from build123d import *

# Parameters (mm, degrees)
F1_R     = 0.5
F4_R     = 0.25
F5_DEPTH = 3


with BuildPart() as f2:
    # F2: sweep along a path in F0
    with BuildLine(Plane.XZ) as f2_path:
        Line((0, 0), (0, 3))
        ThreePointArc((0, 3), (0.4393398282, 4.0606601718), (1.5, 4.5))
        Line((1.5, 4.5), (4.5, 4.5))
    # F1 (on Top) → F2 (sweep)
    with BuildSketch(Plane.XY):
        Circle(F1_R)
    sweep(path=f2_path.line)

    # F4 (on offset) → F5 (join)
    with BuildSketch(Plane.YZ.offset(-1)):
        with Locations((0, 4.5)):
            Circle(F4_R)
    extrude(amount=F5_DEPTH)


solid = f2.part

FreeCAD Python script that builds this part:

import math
import FreeCAD as App
import Part
import Sketcher

doc = App.newDocument("Part")
body = doc.addObject("PartDesign::Body", "Body")

sketch1 = body.newObject("Sketcher::SketchObject", "Sketch")
sketch1.AttachmentSupport = (doc.getObject("XY_Plane"), [""])
sketch1.MapMode = "FlatFace"
sketch1.addGeometry(Part.Circle(App.Vector(0, 0, 0), App.Vector(0, 0, 1), 0.5), False)
sketch1.addConstraint([
    Sketcher.Constraint("Coincident", 0, 3, -1, 1),
    Sketcher.Constraint("Diameter", 0, 1.0),
])

sketch2 = body.newObject("Sketcher::SketchObject", "Sketch001")
sketch2.AttachmentSupport = (doc.getObject("XZ_Plane"), [""])
sketch2.MapMode = "FlatFace"
sketch2.addGeometry([
    Part.LineSegment(App.Vector(0, 0, 0), App.Vector(0, 3, 0)),
    Part.ArcOfCircle(Part.Circle(App.Vector(1.5, 3, 0), App.Vector(0, 0, 1), 1.5), math.radians(90), math.radians(180)),
    Part.LineSegment(App.Vector(1.5, 4.5, 0), App.Vector(4.5, 4.5, 0)),
], False)
sketch2.addConstraint([
    Sketcher.Constraint("Tangent", 0, 2, 1, 2),
    Sketcher.Constraint("Tangent", 1, 1, 2, 1),
    Sketcher.Constraint("Vertical", 0),
    Sketcher.Constraint("Horizontal", 2),
    Sketcher.Constraint("Coincident", 0, 1, -1, 1),
    Sketcher.Constraint("Equal", 2, 0),
    Sketcher.Constraint("Radius", 1, 1.5),
    Sketcher.Constraint("DistanceX", 2, 1, 2, 2, 3.0),
])
doc.recompute()

additivepipe = body.newObject("PartDesign::AdditivePipe", "AdditivePipe")
additivepipe.Profile = sketch1
additivepipe.Spine = (sketch2, ["Edge1", "Edge2", "Edge3"])

sketch3 = body.newObject("Sketcher::SketchObject", "Sketch002")
sketch3.AttachmentSupport = (doc.getObject("YZ_Plane"), [""])
sketch3.MapMode = "FlatFace"
sketch3.AttachmentOffset = App.Placement(App.Vector(0, 0, -1), App.Rotation())
sketch3.addGeometry(Part.Circle(App.Vector(0, 4.5, 0), App.Vector(0, 0, 1), 0.25), False)
sketch3.addConstraint([
    Sketcher.Constraint("PointOnObject", 0, 3, -2),
    Sketcher.Constraint("Diameter", 0, 0.5),
    Sketcher.Constraint("DistanceY", -1, 1, 0, 3, 4.5),
])
pad1 = body.newObject("PartDesign::Pad", "Pad")
pad1.Profile = sketch3
pad1.Length = 3

doc.recompute()
